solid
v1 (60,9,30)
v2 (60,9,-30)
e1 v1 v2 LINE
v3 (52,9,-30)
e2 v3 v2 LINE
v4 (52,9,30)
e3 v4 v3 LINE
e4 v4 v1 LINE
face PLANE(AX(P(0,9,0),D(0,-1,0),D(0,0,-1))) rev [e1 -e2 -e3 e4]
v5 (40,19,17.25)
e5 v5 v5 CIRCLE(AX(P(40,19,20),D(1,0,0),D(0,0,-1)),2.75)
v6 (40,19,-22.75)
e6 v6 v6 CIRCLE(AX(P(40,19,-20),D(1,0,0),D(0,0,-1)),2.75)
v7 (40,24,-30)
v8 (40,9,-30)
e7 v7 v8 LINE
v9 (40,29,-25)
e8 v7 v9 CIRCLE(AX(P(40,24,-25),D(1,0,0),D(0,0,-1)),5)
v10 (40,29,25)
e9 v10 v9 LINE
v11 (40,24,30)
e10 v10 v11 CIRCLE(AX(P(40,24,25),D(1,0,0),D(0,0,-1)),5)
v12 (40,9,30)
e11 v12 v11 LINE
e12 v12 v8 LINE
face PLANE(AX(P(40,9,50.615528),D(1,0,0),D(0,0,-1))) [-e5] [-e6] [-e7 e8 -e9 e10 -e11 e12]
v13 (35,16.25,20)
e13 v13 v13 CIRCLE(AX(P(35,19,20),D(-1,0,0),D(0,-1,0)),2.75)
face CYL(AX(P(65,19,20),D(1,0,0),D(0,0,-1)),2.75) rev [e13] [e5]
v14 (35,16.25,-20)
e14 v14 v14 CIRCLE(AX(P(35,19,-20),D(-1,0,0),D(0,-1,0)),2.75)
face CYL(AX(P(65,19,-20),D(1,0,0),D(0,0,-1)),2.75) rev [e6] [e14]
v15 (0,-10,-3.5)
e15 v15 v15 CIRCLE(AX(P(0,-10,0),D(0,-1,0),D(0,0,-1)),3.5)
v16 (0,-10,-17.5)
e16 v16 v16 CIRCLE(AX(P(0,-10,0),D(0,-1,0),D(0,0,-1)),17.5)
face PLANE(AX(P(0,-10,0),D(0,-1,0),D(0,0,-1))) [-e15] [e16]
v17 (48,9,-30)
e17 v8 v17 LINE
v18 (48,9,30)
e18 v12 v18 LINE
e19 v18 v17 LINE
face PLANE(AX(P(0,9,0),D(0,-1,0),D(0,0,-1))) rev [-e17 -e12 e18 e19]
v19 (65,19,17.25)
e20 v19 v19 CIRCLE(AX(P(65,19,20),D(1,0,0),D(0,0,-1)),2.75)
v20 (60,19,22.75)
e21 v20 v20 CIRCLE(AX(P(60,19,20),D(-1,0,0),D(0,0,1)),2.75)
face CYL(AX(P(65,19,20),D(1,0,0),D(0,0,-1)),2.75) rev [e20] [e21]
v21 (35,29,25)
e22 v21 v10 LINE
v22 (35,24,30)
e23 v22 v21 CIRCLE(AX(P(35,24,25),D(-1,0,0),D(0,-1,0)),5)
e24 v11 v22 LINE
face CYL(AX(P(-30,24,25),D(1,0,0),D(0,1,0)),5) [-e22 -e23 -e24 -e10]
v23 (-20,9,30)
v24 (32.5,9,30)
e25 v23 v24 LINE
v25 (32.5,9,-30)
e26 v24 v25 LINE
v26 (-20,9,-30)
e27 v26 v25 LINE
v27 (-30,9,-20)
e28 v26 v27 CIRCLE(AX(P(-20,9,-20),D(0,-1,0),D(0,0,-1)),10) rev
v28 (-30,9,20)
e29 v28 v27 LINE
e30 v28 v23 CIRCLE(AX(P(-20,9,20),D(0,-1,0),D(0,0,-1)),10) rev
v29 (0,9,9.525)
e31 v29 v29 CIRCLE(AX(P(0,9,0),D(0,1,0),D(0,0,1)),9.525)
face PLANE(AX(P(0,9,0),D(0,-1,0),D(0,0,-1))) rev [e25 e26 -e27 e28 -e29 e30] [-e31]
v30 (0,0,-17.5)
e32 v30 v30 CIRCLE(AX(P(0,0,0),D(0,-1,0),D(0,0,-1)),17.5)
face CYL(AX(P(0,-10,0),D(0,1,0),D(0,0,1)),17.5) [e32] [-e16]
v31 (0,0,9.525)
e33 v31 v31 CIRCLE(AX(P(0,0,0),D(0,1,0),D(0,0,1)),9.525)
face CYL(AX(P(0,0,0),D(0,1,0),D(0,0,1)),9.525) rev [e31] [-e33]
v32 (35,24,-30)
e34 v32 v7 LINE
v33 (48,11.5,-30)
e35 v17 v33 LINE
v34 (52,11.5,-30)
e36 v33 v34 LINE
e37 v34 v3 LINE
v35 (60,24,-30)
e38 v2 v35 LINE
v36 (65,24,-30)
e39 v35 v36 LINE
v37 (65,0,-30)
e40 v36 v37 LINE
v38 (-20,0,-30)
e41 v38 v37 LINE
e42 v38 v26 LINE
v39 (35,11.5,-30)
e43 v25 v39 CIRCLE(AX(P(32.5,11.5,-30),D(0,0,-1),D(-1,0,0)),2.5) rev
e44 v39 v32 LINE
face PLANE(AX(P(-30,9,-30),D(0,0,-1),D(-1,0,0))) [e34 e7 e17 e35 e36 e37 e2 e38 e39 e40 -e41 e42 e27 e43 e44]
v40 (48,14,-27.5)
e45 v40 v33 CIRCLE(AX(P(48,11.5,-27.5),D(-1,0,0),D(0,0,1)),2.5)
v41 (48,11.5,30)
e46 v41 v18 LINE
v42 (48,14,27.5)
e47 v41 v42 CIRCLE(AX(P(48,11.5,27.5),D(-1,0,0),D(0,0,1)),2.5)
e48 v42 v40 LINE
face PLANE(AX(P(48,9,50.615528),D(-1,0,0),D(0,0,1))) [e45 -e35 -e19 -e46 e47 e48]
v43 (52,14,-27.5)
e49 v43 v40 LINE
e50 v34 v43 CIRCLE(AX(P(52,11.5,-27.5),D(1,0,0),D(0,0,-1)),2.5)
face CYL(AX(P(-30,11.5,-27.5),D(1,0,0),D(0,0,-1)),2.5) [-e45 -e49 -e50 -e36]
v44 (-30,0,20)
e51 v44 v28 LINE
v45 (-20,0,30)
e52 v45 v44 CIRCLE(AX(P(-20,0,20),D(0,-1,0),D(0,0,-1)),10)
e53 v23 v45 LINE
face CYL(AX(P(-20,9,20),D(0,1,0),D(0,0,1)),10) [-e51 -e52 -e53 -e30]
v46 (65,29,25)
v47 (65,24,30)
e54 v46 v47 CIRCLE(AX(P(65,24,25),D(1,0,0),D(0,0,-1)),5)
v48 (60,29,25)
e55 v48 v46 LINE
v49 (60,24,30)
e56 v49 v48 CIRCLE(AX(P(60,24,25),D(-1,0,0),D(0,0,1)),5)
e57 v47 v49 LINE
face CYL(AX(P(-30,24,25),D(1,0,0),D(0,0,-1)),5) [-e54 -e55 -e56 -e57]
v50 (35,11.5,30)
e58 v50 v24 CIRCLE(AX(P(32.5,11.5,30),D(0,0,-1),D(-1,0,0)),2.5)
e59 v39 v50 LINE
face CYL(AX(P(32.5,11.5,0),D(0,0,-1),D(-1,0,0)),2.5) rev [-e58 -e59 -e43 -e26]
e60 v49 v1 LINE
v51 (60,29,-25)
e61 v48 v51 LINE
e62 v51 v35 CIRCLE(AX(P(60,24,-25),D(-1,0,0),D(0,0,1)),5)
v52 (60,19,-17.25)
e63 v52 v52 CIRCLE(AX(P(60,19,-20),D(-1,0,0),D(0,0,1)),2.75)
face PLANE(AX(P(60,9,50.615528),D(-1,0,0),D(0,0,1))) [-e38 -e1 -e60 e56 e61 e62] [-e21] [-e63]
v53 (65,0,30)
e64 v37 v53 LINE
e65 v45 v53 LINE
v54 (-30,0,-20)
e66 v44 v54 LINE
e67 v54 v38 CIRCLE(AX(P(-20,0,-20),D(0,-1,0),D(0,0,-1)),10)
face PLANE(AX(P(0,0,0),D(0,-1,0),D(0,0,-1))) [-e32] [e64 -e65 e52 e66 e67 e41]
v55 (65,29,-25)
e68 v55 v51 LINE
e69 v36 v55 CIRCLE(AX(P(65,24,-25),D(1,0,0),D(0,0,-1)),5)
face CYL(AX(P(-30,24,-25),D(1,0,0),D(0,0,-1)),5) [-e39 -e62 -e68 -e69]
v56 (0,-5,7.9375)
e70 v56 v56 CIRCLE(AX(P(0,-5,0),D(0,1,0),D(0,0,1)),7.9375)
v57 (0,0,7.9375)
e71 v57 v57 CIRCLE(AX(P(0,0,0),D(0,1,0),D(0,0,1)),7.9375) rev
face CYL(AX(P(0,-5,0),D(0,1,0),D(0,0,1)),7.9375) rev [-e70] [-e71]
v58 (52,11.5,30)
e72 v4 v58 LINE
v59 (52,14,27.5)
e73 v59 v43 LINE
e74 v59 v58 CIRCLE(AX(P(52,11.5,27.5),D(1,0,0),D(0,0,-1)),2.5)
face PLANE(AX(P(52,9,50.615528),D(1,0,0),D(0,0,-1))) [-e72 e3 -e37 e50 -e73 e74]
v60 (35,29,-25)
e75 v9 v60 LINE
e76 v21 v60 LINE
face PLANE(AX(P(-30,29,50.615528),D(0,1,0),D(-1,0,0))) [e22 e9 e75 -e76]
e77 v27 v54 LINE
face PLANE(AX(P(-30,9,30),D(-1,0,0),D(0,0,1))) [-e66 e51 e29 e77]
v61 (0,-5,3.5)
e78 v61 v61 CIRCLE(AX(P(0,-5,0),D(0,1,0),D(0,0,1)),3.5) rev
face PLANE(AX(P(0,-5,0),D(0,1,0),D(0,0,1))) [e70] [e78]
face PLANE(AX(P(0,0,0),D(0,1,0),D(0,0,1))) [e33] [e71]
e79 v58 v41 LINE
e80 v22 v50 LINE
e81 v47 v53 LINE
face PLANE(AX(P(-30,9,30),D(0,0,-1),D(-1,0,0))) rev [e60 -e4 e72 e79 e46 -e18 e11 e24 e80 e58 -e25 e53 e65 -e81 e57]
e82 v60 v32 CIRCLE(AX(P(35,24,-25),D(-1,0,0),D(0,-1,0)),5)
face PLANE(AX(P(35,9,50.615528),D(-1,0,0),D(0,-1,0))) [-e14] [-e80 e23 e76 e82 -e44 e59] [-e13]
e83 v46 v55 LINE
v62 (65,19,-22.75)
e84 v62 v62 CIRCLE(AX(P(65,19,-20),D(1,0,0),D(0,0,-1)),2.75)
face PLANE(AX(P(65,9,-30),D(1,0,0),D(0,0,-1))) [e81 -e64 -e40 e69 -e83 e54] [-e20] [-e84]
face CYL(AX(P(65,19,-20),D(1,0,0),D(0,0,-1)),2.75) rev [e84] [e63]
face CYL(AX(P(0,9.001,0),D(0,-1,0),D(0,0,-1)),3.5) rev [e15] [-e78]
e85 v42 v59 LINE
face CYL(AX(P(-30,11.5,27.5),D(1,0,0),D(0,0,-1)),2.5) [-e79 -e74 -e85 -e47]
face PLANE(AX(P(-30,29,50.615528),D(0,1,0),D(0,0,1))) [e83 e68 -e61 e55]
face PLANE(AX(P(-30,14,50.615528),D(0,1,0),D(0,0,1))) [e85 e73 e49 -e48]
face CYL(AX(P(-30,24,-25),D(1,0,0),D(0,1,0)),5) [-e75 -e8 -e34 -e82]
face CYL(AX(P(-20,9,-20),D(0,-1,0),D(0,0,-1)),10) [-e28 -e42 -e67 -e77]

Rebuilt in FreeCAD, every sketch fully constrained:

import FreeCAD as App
import Part
import Sketcher

V = App.Vector
Q = App.Units.Quantity


def edges_at(feature, points):
    """Names of the edges that pass closest to the given points."""
    edges = feature.Shape.Edges
    near = lambda p: min(range(len(edges)), key=lambda i: edges[i].distToShape(Part.Vertex(*p))[0])
    return sorted({f"Edge{near(p) + 1}" for p in points})

doc = App.newDocument("Part")
body = doc.addObject("PartDesign::Body", "Body")

# Sketch on XZ plane
sketch1 = body.newObject("Sketcher::SketchObject", "Sketch")
sketch1.AttachmentSupport = (doc.getObject("XZ_Plane"), [""])
sketch1.MapMode = "FlatFace"
sketch1.addGeometry(Part.LineSegment(V(-30, -30, 0), V(-30, 30, 0)), False)
sketch1.addGeometry(Part.LineSegment(V(-30, 30, 0), V(65, 30, 0)), False)
sketch1.addGeometry(Part.LineSegment(V(65, 30, 0), V(65, -30, 0)), False)
sketch1.addGeometry(Part.LineSegment(V(65, -30, 0), V(-30, -30, 0)), False)
sketch1.addConstraint(Sketcher.Constraint("Coincident", 0, 2, 1, 1))
sketch1.addConstraint(Sketcher.Constraint("Coincident", 1, 2, 2, 1))
sketch1.addConstraint(Sketcher.Constraint("Coincident", 2, 2, 3, 1))
sketch1.addConstraint(Sketcher.Constraint("Coincident", 3, 2, 0, 1))
sketch1.addConstraint(Sketcher.Constraint("Vertical", 0))
sketch1.addConstraint(Sketcher.Constraint("Horizontal", 1))
sketch1.addConstraint(Sketcher.Constraint("Vertical", 2))
sketch1.addConstraint(Sketcher.Constraint("Horizontal", 3))
sketch1.addConstraint(Sketcher.Constraint("DistanceX", 1, 1, 1, 2, Q("95 mm")))
sketch1.addConstraint(Sketcher.Constraint("DistanceY", 0, 1, 0, 2, Q("60 mm")))
sketch1.addConstraint(Sketcher.Constraint("DistanceX", 0, 2, -1, 1, Q("30 mm")))
sketch1.addConstraint(Sketcher.Constraint("DistanceY", -1, 1, 0, 2, Q("30 mm")))
pad1 = body.newObject("PartDesign::Pad", "Pad")
pad1.Profile = sketch1
pad1.Length = 9
pad1.Reversed = True

# Sketch on XZ plane
sketch2 = body.newObject("Sketcher::SketchObject", "Sketch001")
sketch2.AttachmentSupport = (doc.getObject("XZ_Plane"), [""])
sketch2.MapMode = "FlatFace"
sketch2.addGeometry(Part.Circle(V(0, 0, 0), V(0, 0, 1), 17.5), False)
sketch2.addConstraint(Sketcher.Constraint("Coincident", 0, 3, -1, 1))
sketch2.addConstraint(Sketcher.Constraint("Diameter", 0, Q("35 mm")))
pad2 = body.newObject("PartDesign::Pad", "Pad001")
pad2.Profile = sketch2
pad2.Length = 10

# Sketch on XZ plane
sketch3 = body.newObject("Sketcher::SketchObject", "Sketch002")
sketch3.AttachmentSupport = (doc.getObject("XZ_Plane"), [""])
sketch3.MapMode = "FlatFace"
sketch3.AttachmentOffset = App.Placement(V(0, 0, -9), App.Rotation())
sketch3.addGeometry(Part.Circle(V(0, 0, 0), V(0, 0, 1), 7.9375), False)
sketch3.addConstraint(Sketcher.Constraint("Coincident", 0, 3, -1, 1))
sketch3.addConstraint(Sketcher.Constraint("Diameter", 0, Q("15.875 mm")))
pocket1 = body.newObject("PartDesign::Pocket", "Pocket")
pocket1.Profile = sketch3
pocket1.Length = 14
pocket1.Reversed = True

# Sketch on XZ plane
sketch4 = body.newObject("Sketcher::SketchObject", "Sketch003")
sketch4.AttachmentSupport = (doc.getObject("XZ_Plane"), [""])
sketch4.MapMode = "FlatFace"
sketch4.AttachmentOffset = App.Placement(V(0, 0, -9), App.Rotation())
sketch4.addGeometry(Part.Circle(V(0, 0, 0), V(0, 0, 1), 9.525), False)
sketch4.addConstraint(Sketcher.Constraint("Coincident", 0, 3, -1, 1))
sketch4.addConstraint(Sketcher.Constraint("Diameter", 0, Q("19.05 mm")))
pocket2 = body.newObject("PartDesign::Pocket", "Pocket001")
pocket2.Profile = sketch4
pocket2.Length = 9
pocket2.Reversed = True

# Sketch on XZ plane
sketch5 = body.newObject("Sketcher::SketchObject", "Sketch004")
sketch5.AttachmentSupport = (doc.getObject("XZ_Plane"), [""])
sketch5.MapMode = "FlatFace"
sketch5.AttachmentOffset = App.Placement(V(0, 0, 10), App.Rotation())
sketch5.addGeometry(Part.Circle(V(0, 0, 0), V(0, 0, 1), 3.5), False)
sketch5.addConstraint(Sketcher.Constraint("Coincident", 0, 3, -1, 1))
sketch5.addConstraint(Sketcher.Constraint("Diameter", 0, Q("7 mm")))
pocket3 = body.newObject("PartDesign::Pocket", "Pocket002")
pocket3.Profile = sketch5
pocket3.Type = "UpToFirst"

# Sketch on XY plane
sketch6 = body.newObject("Sketcher::SketchObject", "Sketch005")
sketch6.AttachmentSupport = (doc.getObject("XY_Plane"), [""])
sketch6.MapMode = "FlatFace"
sketch6.AttachmentOffset = App.Placement(V(0, 0, -30), App.Rotation())
sketch6.addGeometry(Part.LineSegment(V(60, 29, 0), V(60, 9, 0)), False)
sketch6.addGeometry(Part.LineSegment(V(60, 9, 0), V(65, 9, 0)), False)
sketch6.addGeometry(Part.LineSegment(V(65, 9, 0), V(65, 29, 0)), False)
sketch6.addGeometry(Part.LineSegment(V(65, 29, 0), V(60, 29, 0)), False)
sketch6.addGeometry(Part.LineSegment(V(35, 29, 0), V(35, 9, 0)), False)
sketch6.addGeometry(Part.LineSegment(V(35, 9, 0), V(40, 9, 0)), False)
sketch6.addGeometry(Part.LineSegment(V(40, 9, 0), V(40, 29, 0)), False)
sketch6.addGeometry(Part.LineSegment(V(40, 29, 0), V(35, 29, 0)), False)
sketch6.addGeometry(Part.LineSegment(V(48, 14, 0), V(48, 9, 0)), False)
sketch6.addGeometry(Part.LineSegment(V(48, 9, 0), V(52, 9, 0)), False)
sketch6.addGeometry(Part.LineSegment(V(52, 9, 0), V(52, 14, 0)), False)
sketch6.addGeometry(Part.LineSegment(V(52, 14, 0), V(48, 14, 0)), False)
sketch6.addConstraint(Sketcher.Constraint("Coincident", 0, 2, 1, 1))
sketch6.addConstraint(Sketcher.Constraint("Coincident", 1, 2, 2, 1))
sketch6.addConstraint(Sketcher.Constraint("Coincident", 2, 2, 3, 1))
sketch6.addConstraint(Sketcher.Constraint("Coincident", 3, 2, 0, 1))
sketch6.addConstraint(Sketcher.Constraint("Coincident", 4, 2, 5, 1))
sketch6.addConstraint(Sketcher.Constraint("Coincident", 5, 2, 6, 1))
sketch6.addConstraint(Sketcher.Constraint("Coincident", 6, 2, 7, 1))
sketch6.addConstraint(Sketcher.Constraint("Coincident", 7, 2, 4, 1))
sketch6.addConstraint(Sketcher.Constraint("Coincident", 8, 2, 9, 1))
sketch6.addConstraint(Sketcher.Constraint("Coincident", 9, 2, 10, 1))
sketch6.addConstraint(Sketcher.Constraint("Coincident", 10, 2, 11, 1))
sketch6.addConstraint(Sketcher.Constraint("Coincident", 11, 2, 8, 1))
sketch6.addConstraint(Sketcher.Constraint("Vertical", 0))
sketch6.addConstraint(Sketcher.Constraint("Horizontal", 1))
sketch6.addConstraint(Sketcher.Constraint("Vertical", 2))
sketch6.addConstraint(Sketcher.Constraint("Horizontal", 3))
sketch6.addConstraint(Sketcher.Constraint("Vertical", 4))
sketch6.addConstraint(Sketcher.Constraint("Horizontal", 5))
sketch6.addConstraint(Sketcher.Constraint("Vertical", 6))
sketch6.addConstraint(Sketcher.Constraint("Horizontal", 7))
sketch6.addConstraint(Sketcher.Constraint("Vertical", 8))
sketch6.addConstraint(Sketcher.Constraint("Horizontal", 9))
sketch6.addConstraint(Sketcher.Constraint("Vertical", 10))
sketch6.addConstraint(Sketcher.Constraint("Horizontal", 11))
sketch6.addConstraint(Sketcher.Constraint("Horizontal", 1, 2, 4, 2))
sketch6.addConstraint(Sketcher.Constraint("Horizontal", 3, 2, 6, 2))
sketch6.addConstraint(Sketcher.Constraint("Horizontal", 5, 2, 8, 2))
sketch6.addConstraint(Sketcher.Constraint("Equal", 3, 5))
sketch6.addConstraint(Sketcher.Constraint("Equal", 7, 8))
sketch6.addConstraint(Sketcher.Constraint("DistanceX", 1, 1, 1, 2, Q("5 mm")))
sketch6.addConstraint(Sketcher.Constraint("DistanceX", 9, 1, 9, 2, Q("4 mm")))
sketch6.addConstraint(Sketcher.Constraint("DistanceY", 0, 2, 0, 1, Q("20 mm")))
sketch6.addConstraint(Sketcher.Constraint("DistanceX", -1, 1, 0, 2, Q("60 mm")))
sketch6.addConstraint(Sketcher.Constraint("DistanceY", -1, 1, 0, 2, Q("9 mm")))
sketch6.addConstraint(Sketcher.Constraint("DistanceX", -1, 1, 4, 2, Q("35 mm")))
sketch6.addConstraint(Sketcher.Constraint("DistanceX", -1, 1, 8, 2, Q("48 mm")))
pad3 = body.newObject("PartDesign::Pad", "Pad002")
pad3.Profile = sketch6
pad3.Length = 60

# Sketch on YZ plane
sketch7 = body.newObject("Sketcher::SketchObject", "Sketch006")
sketch7.AttachmentSupport = (doc.getObject("YZ_Plane"), [""])
sketch7.MapMode = "FlatFace"
sketch7.AttachmentOffset = App.Placement(V(0, 0, 65), App.Rotation())
sketch7.addGeometry(Part.Circle(V(19, 20, 0), V(0, 0, 1), 2.75), False)
sketch7.addConstraint(Sketcher.Constraint("Diameter", 0, Q("5.5 mm")))
sketch7.addConstraint(Sketcher.Constraint("DistanceX", -1, 1, 0, 3, Q("19 mm")))
sketch7.addConstraint(Sketcher.Constraint("DistanceY", -1, 1, 0, 3, Q("20 mm")))
doc.recompute()
hole = body.newObject("PartDesign::Hole", "Hole")
hole.Profile = sketch7
hole.ThreadType = "None"
hole.Diameter = 5.5
hole.DepthType = "ThroughAll"
doc.recompute()

mirrored = body.newObject("PartDesign::Mirrored", "Mirrored")
mirrored.Originals = [hole]
mirrored.MirrorPlane = (doc.getObject("XY_Plane"), [""])
body.Tip = mirrored
doc.recompute()

fillet = body.newObject("PartDesign::Fillet", "Fillet")
fillet.Base = (mirrored, edges_at(mirrored, [
    (62.5, 29, -30),
    (62.5, 29, 30),
    (37.5, 29, -30),
    (37.5, 29, 30),
]))
fillet.Radius = 5
doc.recompute()

fillet2 = body.newObject("PartDesign::Fillet", "Fillet001")
fillet2.Base = (fillet, edges_at(fillet, [(50, 14, -30), (50, 14, 30)]))
fillet2.Radius = 2.5
doc.recompute()

fillet3 = body.newObject("PartDesign::Fillet", "Fillet002")
fillet3.Base = (fillet2, edges_at(fillet2, [(-30, 4.5, 30), (-30, 4.5, -30)]))
fillet3.Radius = 10
doc.recompute()

fillet4 = body.newObject("PartDesign::Fillet", "Fillet003")
fillet4.Base = (fillet3, edges_at(fillet3, [(35, 9, 0)]))
fillet4.Radius = 2.5

doc.recompute()
